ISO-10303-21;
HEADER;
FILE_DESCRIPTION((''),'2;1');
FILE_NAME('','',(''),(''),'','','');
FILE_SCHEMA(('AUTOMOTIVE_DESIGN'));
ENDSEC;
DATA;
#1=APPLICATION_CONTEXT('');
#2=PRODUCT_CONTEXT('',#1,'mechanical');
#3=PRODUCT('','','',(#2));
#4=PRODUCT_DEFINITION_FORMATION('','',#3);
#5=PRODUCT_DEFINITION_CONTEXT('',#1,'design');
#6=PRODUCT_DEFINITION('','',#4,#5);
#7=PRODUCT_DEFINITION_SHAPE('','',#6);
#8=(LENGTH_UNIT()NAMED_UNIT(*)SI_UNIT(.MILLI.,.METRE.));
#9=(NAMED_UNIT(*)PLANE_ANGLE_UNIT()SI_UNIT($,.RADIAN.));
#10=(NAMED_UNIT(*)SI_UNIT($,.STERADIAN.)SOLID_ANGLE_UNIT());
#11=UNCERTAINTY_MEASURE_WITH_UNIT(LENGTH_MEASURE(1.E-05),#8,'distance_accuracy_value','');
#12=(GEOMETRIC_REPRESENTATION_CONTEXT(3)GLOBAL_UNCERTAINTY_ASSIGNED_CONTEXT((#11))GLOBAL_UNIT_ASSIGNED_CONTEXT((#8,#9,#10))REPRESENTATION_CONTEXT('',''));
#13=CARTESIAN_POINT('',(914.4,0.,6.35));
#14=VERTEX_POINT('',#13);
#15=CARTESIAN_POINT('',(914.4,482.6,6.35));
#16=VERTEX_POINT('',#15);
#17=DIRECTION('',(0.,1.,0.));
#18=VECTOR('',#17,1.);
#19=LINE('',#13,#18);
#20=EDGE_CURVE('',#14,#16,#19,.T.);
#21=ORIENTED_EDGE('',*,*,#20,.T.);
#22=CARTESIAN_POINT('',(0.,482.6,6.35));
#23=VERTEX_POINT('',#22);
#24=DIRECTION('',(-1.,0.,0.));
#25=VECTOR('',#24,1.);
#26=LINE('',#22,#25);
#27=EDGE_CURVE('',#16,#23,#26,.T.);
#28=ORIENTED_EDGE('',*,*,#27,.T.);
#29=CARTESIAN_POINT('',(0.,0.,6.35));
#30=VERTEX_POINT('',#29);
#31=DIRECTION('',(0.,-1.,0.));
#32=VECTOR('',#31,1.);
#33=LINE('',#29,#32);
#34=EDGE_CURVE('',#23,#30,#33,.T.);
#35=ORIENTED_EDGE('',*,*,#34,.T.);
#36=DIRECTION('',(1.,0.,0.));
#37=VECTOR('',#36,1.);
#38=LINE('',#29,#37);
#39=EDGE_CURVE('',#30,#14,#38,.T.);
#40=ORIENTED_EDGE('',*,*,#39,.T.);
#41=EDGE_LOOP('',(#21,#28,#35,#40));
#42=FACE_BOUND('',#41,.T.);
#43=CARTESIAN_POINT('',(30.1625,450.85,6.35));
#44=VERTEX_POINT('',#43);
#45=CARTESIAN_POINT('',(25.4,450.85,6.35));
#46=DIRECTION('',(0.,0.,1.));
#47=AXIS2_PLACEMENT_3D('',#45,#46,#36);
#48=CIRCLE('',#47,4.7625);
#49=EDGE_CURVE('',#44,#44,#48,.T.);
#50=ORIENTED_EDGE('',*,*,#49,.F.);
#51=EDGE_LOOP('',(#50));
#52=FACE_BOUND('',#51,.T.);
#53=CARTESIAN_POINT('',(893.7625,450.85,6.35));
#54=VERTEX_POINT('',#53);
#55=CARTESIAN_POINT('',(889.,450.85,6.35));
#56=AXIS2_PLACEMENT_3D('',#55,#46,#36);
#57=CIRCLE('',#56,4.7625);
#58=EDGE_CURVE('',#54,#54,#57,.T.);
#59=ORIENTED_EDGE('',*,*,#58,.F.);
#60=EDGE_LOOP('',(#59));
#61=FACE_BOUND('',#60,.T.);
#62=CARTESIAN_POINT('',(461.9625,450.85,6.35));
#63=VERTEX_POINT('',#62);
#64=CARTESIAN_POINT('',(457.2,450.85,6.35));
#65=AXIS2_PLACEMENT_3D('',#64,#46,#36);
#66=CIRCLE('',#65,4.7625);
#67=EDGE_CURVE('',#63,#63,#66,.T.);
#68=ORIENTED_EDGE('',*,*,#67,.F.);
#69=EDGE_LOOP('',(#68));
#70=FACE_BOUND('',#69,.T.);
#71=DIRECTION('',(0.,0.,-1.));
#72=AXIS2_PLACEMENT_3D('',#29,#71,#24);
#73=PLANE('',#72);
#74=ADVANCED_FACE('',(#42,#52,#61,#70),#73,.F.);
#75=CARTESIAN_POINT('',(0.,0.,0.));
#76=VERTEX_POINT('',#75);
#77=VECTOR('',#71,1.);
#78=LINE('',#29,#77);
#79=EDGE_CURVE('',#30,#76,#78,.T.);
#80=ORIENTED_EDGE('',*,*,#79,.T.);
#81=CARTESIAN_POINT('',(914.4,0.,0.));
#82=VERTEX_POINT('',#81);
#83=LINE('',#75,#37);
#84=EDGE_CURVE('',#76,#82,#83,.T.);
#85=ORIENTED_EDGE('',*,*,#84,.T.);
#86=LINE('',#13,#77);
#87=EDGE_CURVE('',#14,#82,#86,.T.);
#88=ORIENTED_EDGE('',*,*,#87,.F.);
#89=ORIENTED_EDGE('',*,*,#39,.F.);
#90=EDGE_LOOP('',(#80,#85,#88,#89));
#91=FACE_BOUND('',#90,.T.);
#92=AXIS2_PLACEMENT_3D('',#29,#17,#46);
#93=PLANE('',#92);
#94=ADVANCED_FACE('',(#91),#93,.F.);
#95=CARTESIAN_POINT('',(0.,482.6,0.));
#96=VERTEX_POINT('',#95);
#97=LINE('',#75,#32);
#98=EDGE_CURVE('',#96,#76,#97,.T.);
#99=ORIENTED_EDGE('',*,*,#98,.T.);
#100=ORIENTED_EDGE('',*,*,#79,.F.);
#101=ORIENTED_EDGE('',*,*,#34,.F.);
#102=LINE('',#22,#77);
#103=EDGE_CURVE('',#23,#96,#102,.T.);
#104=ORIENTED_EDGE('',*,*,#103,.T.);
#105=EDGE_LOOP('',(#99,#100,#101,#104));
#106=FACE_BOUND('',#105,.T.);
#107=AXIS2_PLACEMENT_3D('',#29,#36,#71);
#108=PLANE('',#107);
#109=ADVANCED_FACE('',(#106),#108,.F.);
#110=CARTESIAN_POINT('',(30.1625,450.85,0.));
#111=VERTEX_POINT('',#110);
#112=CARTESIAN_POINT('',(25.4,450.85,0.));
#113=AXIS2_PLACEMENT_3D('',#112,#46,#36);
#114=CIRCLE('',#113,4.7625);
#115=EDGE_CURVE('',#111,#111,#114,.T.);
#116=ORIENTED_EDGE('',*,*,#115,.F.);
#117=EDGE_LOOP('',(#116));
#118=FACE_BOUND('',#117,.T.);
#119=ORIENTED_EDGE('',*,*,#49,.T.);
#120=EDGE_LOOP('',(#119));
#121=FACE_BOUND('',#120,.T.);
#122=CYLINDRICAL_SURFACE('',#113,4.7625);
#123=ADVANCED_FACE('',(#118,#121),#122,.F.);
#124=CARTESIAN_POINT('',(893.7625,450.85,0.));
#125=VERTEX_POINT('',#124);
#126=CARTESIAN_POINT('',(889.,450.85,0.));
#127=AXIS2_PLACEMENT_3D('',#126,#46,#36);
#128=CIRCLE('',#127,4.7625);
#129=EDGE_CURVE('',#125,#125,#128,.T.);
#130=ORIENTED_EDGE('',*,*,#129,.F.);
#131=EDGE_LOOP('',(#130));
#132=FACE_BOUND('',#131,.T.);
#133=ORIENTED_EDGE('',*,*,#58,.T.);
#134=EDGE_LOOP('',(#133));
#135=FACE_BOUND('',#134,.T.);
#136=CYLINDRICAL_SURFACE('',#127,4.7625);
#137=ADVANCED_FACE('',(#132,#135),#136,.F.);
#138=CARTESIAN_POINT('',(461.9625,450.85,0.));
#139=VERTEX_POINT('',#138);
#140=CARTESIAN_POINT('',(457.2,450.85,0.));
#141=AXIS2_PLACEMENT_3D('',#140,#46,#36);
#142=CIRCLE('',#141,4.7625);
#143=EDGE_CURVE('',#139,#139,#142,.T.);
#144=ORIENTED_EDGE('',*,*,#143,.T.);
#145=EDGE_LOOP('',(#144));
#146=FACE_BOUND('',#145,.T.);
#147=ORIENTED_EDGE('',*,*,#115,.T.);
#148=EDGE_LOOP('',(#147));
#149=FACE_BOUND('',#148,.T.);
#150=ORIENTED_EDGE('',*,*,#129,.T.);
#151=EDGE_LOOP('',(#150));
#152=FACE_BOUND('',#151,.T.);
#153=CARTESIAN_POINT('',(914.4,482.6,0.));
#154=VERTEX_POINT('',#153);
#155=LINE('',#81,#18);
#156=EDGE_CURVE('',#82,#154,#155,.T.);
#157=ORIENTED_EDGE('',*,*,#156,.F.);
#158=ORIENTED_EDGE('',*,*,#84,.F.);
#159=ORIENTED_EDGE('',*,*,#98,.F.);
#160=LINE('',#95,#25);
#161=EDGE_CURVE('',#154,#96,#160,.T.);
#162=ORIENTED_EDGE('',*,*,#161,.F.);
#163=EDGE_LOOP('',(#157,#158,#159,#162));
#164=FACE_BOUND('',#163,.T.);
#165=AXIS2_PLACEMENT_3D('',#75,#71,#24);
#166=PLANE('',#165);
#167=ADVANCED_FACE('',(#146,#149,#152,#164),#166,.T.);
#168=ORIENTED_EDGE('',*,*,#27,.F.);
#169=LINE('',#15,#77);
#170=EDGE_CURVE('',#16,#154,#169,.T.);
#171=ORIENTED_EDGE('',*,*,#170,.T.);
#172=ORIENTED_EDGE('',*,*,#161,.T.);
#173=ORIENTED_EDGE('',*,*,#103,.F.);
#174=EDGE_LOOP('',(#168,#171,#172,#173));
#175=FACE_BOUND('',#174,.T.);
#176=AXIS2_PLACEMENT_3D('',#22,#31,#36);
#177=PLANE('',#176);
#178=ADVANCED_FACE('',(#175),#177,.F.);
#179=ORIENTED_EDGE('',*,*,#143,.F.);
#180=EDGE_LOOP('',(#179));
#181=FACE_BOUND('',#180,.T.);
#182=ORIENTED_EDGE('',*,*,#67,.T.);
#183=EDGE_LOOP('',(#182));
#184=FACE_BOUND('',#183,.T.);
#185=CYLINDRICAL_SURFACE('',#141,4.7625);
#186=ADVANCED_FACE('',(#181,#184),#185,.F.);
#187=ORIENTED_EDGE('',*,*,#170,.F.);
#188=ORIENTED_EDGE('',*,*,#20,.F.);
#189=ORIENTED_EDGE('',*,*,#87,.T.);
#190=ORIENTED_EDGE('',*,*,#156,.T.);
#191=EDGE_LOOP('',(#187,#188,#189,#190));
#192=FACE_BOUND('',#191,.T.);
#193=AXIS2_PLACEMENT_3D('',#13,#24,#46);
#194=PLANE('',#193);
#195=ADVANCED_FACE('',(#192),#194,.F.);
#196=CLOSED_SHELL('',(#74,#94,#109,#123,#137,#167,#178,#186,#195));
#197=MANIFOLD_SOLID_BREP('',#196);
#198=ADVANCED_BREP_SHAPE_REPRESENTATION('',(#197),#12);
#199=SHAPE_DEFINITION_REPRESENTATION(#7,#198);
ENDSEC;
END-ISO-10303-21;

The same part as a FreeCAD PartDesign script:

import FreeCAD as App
import Part
import Sketcher
Q = App.Units.Quantity


def add_polygon(sketch, points):
    """Adds a closed chain of lines whose ends are joined by coincident constraints."""
    first, n = sketch.GeometryCount, len(points)
    for a, b in zip(points, points[1:] + points[:1]):
        sketch.addGeometry(Part.LineSegment(App.Vector(*a, 0), App.Vector(*b, 0)), False)
    for i in range(n):
        sketch.addConstraint(Sketcher.Constraint("Coincident", first + i, 2, first + (i + 1) % n, 1))

doc = App.newDocument("Part")
body = doc.addObject("PartDesign::Body", "Body")

sketch1 = body.newObject("Sketcher::SketchObject", "Sketch")
sketch1.AttachmentSupport = (doc.getObject("XY_Plane"), [""])
sketch1.MapMode = "FlatFace"
add_polygon(sketch1, [(0, 483), (0, 0), (914, 0), (914, 483)])
sketch1.addConstraint([
    Sketcher.Constraint("Vertical", 0),
    Sketcher.Constraint("Horizontal", 1),
    Sketcher.Constraint("Vertical", 2),
    Sketcher.Constraint("Horizontal", 3),
    Sketcher.Constraint("Coincident", 0, 2, -1, 1),
    Sketcher.Constraint("DistanceX", 1, 1, 1, 2, Q("36 in")),
    Sketcher.Constraint("DistanceY", 0, 2, 0, 1, Q("19 in")),
])
pad1 = body.newObject("PartDesign::Pad", "Pad")
pad1.Profile = sketch1
pad1.Length = Q("0.25 in")

sketch2 = body.newObject("Sketcher::SketchObject", "Sketch001")
sketch2.AttachmentSupport = (doc.getObject("XY_Plane"), [""])
sketch2.MapMode = "FlatFace"
sketch2.AttachmentOffset = App.Placement(App.Vector(0, 0, 0.25 * 25.4), App.Rotation())
sketch2.addGeometry(Part.Circle(App.Vector(25.4, 450.9, 0), App.Vector(0, 0, 1), 4.8), False)
sketch2.addConstraint([
    Sketcher.Constraint("Diameter", 0, Q("0.375 in")),
    Sketcher.Constraint("DistanceX", -1, 1, 0, 3, Q("1 in")),
    Sketcher.Constraint("DistanceY", -1, 1, 0, 3, Q("17.75 in")),
])
pocket1 = body.newObject("PartDesign::Pocket", "Pocket")
pocket1.Profile = sketch2
pocket1.Type = "ThroughAll"
doc.recompute()

linearpattern = body.newObject("PartDesign::LinearPattern", "LinearPattern")
linearpattern.Originals = [pocket1]
linearpattern.Direction = (doc.getObject("X_Axis"), [""])
linearpattern.Mode = "offset"
linearpattern.Offset = Q("17 in")
linearpattern.Occurrences = 3
body.Tip = linearpattern

doc.recompute()
